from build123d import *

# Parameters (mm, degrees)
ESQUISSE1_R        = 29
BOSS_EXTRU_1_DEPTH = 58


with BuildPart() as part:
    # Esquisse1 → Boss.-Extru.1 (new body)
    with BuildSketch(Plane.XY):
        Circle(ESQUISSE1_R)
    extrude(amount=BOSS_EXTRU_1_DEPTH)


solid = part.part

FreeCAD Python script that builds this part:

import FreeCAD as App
import Part
import Sketcher
Q = App.Units.Quantity

doc = App.newDocument("Part")
body = doc.addObject("PartDesign::Body", "Body")

sketch1 = doc.addObject("Sketcher::SketchObject", "Sketch")
body.addObject(sketch1)
sketch1.AttachmentSupport = (doc.XY_Plane, [""])
sketch1.MapMode = "FlatFace"
sketch1.addGeometry(Part.Circle(App.Vector(0, 0, 0), App.Vector(0, 0, 1), 29), False)
sketch1.addConstraint(Sketcher.Constraint("Coincident", 0, 3, -1, 1))
sketch1.addConstraint(Sketcher.Constraint("Diameter", 0, Q("58 mm")))
pad1 = doc.addObject("PartDesign::Pad", "Pad")
body.addObject(pad1)
pad1.Profile = sketch1
pad1.Length = 58

doc.recompute()
